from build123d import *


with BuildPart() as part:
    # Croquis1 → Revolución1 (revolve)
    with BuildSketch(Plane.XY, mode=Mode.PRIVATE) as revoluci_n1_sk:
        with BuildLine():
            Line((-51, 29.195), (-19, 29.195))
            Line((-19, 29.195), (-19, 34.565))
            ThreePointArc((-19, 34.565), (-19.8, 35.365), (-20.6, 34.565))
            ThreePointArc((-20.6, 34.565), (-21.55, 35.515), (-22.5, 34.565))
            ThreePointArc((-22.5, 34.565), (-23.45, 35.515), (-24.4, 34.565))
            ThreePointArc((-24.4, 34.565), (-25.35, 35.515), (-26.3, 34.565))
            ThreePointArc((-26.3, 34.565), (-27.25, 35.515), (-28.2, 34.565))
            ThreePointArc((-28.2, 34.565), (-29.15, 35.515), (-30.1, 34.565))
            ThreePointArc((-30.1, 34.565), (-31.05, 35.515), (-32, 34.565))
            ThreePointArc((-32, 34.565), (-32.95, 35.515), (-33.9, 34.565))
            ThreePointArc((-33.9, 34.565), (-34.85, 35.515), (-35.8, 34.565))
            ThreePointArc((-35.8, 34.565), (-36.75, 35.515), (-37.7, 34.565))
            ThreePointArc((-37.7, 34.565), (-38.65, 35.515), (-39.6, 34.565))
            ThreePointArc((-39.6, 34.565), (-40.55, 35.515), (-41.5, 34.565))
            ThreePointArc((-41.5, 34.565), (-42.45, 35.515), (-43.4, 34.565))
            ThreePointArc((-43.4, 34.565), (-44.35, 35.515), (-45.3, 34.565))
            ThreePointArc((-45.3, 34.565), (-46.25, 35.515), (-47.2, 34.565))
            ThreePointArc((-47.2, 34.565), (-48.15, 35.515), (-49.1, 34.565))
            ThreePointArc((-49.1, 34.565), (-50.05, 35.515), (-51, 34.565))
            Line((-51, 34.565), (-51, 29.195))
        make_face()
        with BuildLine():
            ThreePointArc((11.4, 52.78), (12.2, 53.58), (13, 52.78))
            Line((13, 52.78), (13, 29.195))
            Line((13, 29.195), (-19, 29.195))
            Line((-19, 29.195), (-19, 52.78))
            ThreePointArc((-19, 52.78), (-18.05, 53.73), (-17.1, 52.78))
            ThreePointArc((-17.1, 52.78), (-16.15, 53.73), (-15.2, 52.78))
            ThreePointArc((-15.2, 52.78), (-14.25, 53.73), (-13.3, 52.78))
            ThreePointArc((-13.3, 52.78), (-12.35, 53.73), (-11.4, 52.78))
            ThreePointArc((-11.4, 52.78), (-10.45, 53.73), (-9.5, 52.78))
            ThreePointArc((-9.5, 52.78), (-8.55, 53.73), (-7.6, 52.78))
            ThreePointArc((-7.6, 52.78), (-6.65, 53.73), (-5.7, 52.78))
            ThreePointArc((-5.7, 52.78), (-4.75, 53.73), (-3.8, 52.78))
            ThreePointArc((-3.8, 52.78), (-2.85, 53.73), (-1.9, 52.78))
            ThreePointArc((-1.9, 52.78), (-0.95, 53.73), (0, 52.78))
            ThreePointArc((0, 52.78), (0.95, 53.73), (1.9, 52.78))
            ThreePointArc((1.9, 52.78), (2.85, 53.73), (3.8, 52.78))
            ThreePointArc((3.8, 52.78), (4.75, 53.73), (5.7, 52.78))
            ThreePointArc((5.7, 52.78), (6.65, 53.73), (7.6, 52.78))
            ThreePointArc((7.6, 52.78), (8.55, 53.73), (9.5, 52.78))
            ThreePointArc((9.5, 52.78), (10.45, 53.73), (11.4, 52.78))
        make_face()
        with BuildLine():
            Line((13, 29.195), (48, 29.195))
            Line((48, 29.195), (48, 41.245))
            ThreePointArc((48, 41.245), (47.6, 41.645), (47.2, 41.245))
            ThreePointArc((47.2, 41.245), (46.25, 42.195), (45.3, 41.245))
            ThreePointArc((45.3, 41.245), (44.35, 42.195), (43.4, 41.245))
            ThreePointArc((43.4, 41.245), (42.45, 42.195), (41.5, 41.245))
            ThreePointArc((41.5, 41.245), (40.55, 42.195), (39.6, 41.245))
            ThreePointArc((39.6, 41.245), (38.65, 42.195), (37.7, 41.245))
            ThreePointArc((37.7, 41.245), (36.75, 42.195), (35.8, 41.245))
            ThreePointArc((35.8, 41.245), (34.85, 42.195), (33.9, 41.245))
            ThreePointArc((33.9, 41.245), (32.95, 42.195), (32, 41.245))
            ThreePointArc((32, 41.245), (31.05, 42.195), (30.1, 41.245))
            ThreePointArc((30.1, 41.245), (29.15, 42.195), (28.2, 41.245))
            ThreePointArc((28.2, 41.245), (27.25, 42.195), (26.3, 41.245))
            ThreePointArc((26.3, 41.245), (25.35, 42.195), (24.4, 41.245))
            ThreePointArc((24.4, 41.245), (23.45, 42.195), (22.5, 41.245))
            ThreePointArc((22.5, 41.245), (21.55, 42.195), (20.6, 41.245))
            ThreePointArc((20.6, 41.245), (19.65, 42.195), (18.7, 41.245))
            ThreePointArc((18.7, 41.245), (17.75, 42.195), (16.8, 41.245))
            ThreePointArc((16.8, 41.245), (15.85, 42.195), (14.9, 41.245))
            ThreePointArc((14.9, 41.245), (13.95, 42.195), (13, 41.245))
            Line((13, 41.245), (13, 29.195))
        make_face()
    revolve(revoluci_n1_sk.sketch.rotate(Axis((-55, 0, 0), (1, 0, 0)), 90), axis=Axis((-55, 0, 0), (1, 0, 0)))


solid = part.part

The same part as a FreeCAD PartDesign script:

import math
import FreeCAD as App
import Part
import Sketcher

V = App.Vector
Q = App.Units.Quantity

doc = App.newDocument("Part")
body = doc.addObject("PartDesign::Body", "Body")

sketch1 = body.newObject("Sketcher::SketchObject", "Sketch")
sketch1.AttachmentSupport = (doc.getObject("XY_Plane"), [""])
sketch1.MapMode = "FlatFace"
sketch1.addGeometry(Part.LineSegment(V(-51, 29.2, 0), V(48, 29.2, 0)), False)
sketch1.addGeometry(Part.LineSegment(V(48, 29.2, 0), V(48, 41.24, 0)), False)
sketch1.addGeometry(Part.ArcOfCircle(Part.Circle(V(47.6, 41.24, 0), V(0, 0, 1), 0.4), math.radians(0), math.radians(180)), False)
sketch1.addGeometry(Part.ArcOfCircle(Part.Circle(V(46.25, 41.24, 0), V(0, 0, 1), 0.95), math.radians(0), math.radians(180)), False)
sketch1.addGeometry(Part.ArcOfCircle(Part.Circle(V(44.35, 41.24, 0), V(0, 0, 1), 0.95), math.radians(0), math.radians(180)), False)
sketch1.addGeometry(Part.ArcOfCircle(Part.Circle(V(42.45, 41.24, 0), V(0, 0, 1), 0.95), math.radians(0), math.radians(180)), False)
sketch1.addGeometry(Part.ArcOfCircle(Part.Circle(V(40.55, 41.24, 0), V(0, 0, 1), 0.95), math.radians(0), math.radians(180)), False)
sketch1.addGeometry(Part.ArcOfCircle(Part.Circle(V(38.65, 41.24, 0), V(0, 0, 1), 0.95), math.radians(0), math.radians(180)), False)
sketch1.addGeometry(Part.ArcOfCircle(Part.Circle(V(36.75, 41.24, 0), V(0, 0, 1), 0.95), math.radians(0), math.radians(180)), False)
sketch1.addGeometry(Part.ArcOfCircle(Part.Circle(V(34.85, 41.24, 0), V(0, 0, 1), 0.95), math.radians(0), math.radians(180)), False)
sketch1.addGeometry(Part.ArcOfCircle(Part.Circle(V(32.95, 41.24, 0), V(0, 0, 1), 0.95), math.radians(0), math.radians(180)), False)
sketch1.addGeometry(Part.ArcOfCircle(Part.Circle(V(31.05, 41.24, 0), V(0, 0, 1), 0.95), math.radians(0), math.radians(180)), False)
sketch1.addGeometry(Part.ArcOfCircle(Part.Circle(V(29.15, 41.24, 0), V(0, 0, 1), 0.95), math.radians(0), math.radians(180)), False)
sketch1.addGeometry(Part.ArcOfCircle(Part.Circle(V(27.25, 41.24, 0), V(0, 0, 1), 0.95), math.radians(0), math.radians(180)), False)
sketch1.addGeometry(Part.ArcOfCircle(Part.Circle(V(25.35, 41.24, 0), V(0, 0, 1), 0.95), math.radians(0), math.radians(180)), False)
sketch1.addGeometry(Part.ArcOfCircle(Part.Circle(V(23.45, 41.24, 0), V(0, 0, 1), 0.95), math.radians(0), math.radians(180)), False)
sketch1.addGeometry(Part.ArcOfCircle(Part.Circle(V(21.55, 41.24, 0), V(0, 0, 1), 0.95), math.radians(0), math.radians(180)), False)
sketch1.addGeometry(Part.ArcOfCircle(Part.Circle(V(19.65, 41.24, 0), V(0, 0, 1), 0.95), math.radians(0), math.radians(180)), False)
sketch1.addGeometry(Part.ArcOfCircle(Part.Circle(V(17.75, 41.24, 0), V(0, 0, 1), 0.95), math.radians(0), math.radians(180)), False)
sketch1.addGeometry(Part.ArcOfCircle(Part.Circle(V(15.85, 41.24, 0), V(0, 0, 1), 0.95), math.radians(0), math.radians(180)), False)
sketch1.addGeometry(Part.ArcOfCircle(Part.Circle(V(13.95, 41.24, 0), V(0, 0, 1), 0.95), math.radians(0), math.radians(180)), False)
sketch1.addGeometry(Part.LineSegment(V(13, 41.24, 0), V(13, 52.78, 0)), False)
sketch1.addGeometry(Part.ArcOfCircle(Part.Circle(V(12.2, 52.78, 0), V(0, 0, 1), 0.8), math.radians(0), math.radians(180)), False)
sketch1.addGeometry(Part.ArcOfCircle(Part.Circle(V(10.45, 52.78, 0), V(0, 0, 1), 0.95), math.radians(0), math.radians(180)), False)
sketch1.addGeometry(Part.ArcOfCircle(Part.Circle(V(8.55, 52.78, 0), V(0, 0, 1), 0.95), math.radians(0), math.radians(180)), False)
sketch1.addGeometry(Part.ArcOfCircle(Part.Circle(V(6.65, 52.78, 0), V(0, 0, 1), 0.95), math.radians(0), math.radians(180)), False)
sketch1.addGeometry(Part.ArcOfCircle(Part.Circle(V(4.75, 52.78, 0), V(0, 0, 1), 0.95), math.radians(0), math.radians(180)), False)
sketch1.addGeometry(Part.ArcOfCircle(Part.Circle(V(2.85, 52.78, 0), V(0, 0, 1), 0.95), math.radians(0), math.radians(180)), False)
sketch1.addGeometry(Part.ArcOfCircle(Part.Circle(V(0.95, 52.78, 0), V(0, 0, 1), 0.95), math.radians(0), math.radians(180)), False)
sketch1.addGeometry(Part.ArcOfCircle(Part.Circle(V(-0.95, 52.78, 0), V(0, 0, 1), 0.95), math.radians(0), math.radians(180)), False)
sketch1.addGeometry(Part.ArcOfCircle(Part.Circle(V(-2.85, 52.78, 0), V(0, 0, 1), 0.95), math.radians(0), math.radians(180)), False)
sketch1.addGeometry(Part.ArcOfCircle(Part.Circle(V(-4.75, 52.78, 0), V(0, 0, 1), 0.95), math.radians(0), math.radians(180)), False)
sketch1.addGeometry(Part.ArcOfCircle(Part.Circle(V(-6.65, 52.78, 0), V(0, 0, 1), 0.95), math.radians(0), math.radians(180)), False)
sketch1.addGeometry(Part.ArcOfCircle(Part.Circle(V(-8.55, 52.78, 0), V(0, 0, 1), 0.95), math.radians(0), math.radians(180)), False)
sketch1.addGeometry(Part.ArcOfCircle(Part.Circle(V(-10.45, 52.78, 0), V(0, 0, 1), 0.95), math.radians(0), math.radians(180)), False)
sketch1.addGeometry(Part.ArcOfCircle(Part.Circle(V(-12.35, 52.78, 0), V(0, 0, 1), 0.95), math.radians(0), math.radians(180)), False)
sketch1.addGeometry(Part.ArcOfCircle(Part.Circle(V(-14.25, 52.78, 0), V(0, 0, 1), 0.95), math.radians(0), math.radians(180)), False)
sketch1.addGeometry(Part.ArcOfCircle(Part.Circle(V(-16.15, 52.78, 0), V(0, 0, 1), 0.95), math.radians(0), math.radians(180)), False)
sketch1.addGeometry(Part.ArcOfCircle(Part.Circle(V(-18.05, 52.78, 0), V(0, 0, 1), 0.95), math.radians(0), math.radians(180)), False)
sketch1.addGeometry(Part.LineSegment(V(-19, 52.78, 0), V(-19, 34.56, 0)), False)
sketch1.addGeometry(Part.ArcOfCircle(Part.Circle(V(-19.8, 34.56, 0), V(0, 0, 1), 0.8), math.radians(0), math.radians(180)), False)
sketch1.addGeometry(Part.ArcOfCircle(Part.Circle(V(-21.55, 34.56, 0), V(0, 0, 1), 0.95), math.radians(0), math.radians(180)), False)
sketch1.addGeometry(Part.ArcOfCircle(Part.Circle(V(-23.45, 34.56, 0), V(0, 0, 1), 0.95), math.radians(0), math.radians(180)), False)
sketch1.addGeometry(Part.ArcOfCircle(Part.Circle(V(-25.35, 34.56, 0), V(0, 0, 1), 0.95), math.radians(0), math.radians(180)), False)
sketch1.addGeometry(Part.ArcOfCircle(Part.Circle(V(-27.25, 34.56, 0), V(0, 0, 1), 0.95), math.radians(0), math.radians(180)), False)
sketch1.addGeometry(Part.ArcOfCircle(Part.Circle(V(-29.15, 34.56, 0), V(0, 0, 1), 0.95), math.radians(0), math.radians(180)), False)
sketch1.addGeometry(Part.ArcOfCircle(Part.Circle(V(-31.05, 34.56, 0), V(0, 0, 1), 0.95), math.radians(0), math.radians(180)), False)
sketch1.addGeometry(Part.ArcOfCircle(Part.Circle(V(-32.95, 34.56, 0), V(0, 0, 1), 0.95), math.radians(0), math.radians(180)), False)
sketch1.addGeometry(Part.ArcOfCircle(Part.Circle(V(-34.85, 34.56, 0), V(0, 0, 1), 0.95), math.radians(0), math.radians(180)), False)
sketch1.addGeometry(Part.ArcOfCircle(Part.Circle(V(-36.75, 34.56, 0), V(0, 0, 1), 0.95), math.radians(0), math.radians(180)), False)
sketch1.addGeometry(Part.ArcOfCircle(Part.Circle(V(-38.65, 34.56, 0), V(0, 0, 1), 0.95), math.radians(0), math.radians(180)), False)
sketch1.addGeometry(Part.ArcOfCircle(Part.Circle(V(-40.55, 34.56, 0), V(0, 0, 1), 0.95), math.radians(0), math.radians(180)), False)
sketch1.addGeometry(Part.ArcOfCircle(Part.Circle(V(-42.45, 34.56, 0), V(0, 0, 1), 0.95), math.radians(0), math.radians(180)), False)
sketch1.addGeometry(Part.ArcOfCircle(Part.Circle(V(-44.35, 34.56, 0), V(0, 0, 1), 0.95), math.radians(0), math.radians(180)), False)
sketch1.addGeometry(Part.ArcOfCircle(Part.Circle(V(-46.25, 34.56, 0), V(0, 0, 1), 0.95), math.radians(0), math.radians(180)), False)
sketch1.addGeometry(Part.ArcOfCircle(Part.Circle(V(-48.15, 34.56, 0), V(0, 0, 1), 0.95), math.radians(0), math.radians(180)), False)
sketch1.addGeometry(Part.ArcOfCircle(Part.Circle(V(-50.05, 34.56, 0), V(0, 0, 1), 0.95), math.radians(0), math.radians(180)), False)
sketch1.addGeometry(Part.LineSegment(V(-51, 34.56, 0), V(-51, 29.2, 0)), False)
sketch1.addConstraint(Sketcher.Constraint("Coincident", 0, 2, 1, 1))
sketch1.addConstraint(Sketcher.Constraint("Tangent", 1, 2, 2, 1))
sketch1.addConstraint(Sketcher.Constraint("Tangent", 2, 2, 3, 1))
sketch1.addConstraint(Sketcher.Constraint("Tangent", 3, 2, 4, 1))
sketch1.addConstraint(Sketcher.Constraint("Tangent", 4, 2, 5, 1))
sketch1.addConstraint(Sketcher.Constraint("Tangent", 5, 2, 6, 1))
sketch1.addConstraint(Sketcher.Constraint("Tangent", 6, 2, 7, 1))
sketch1.addConstraint(Sketcher.Constraint("Tangent", 7, 2, 8, 1))
sketch1.addConstraint(Sketcher.Constraint("Tangent", 8, 2, 9, 1))
sketch1.addConstraint(Sketcher.Constraint("Tangent", 9, 2, 10, 1))
sketch1.addConstraint(Sketcher.Constraint("Tangent", 10, 2, 11, 1))
sketch1.addConstraint(Sketcher.Constraint("Tangent", 11, 2, 12, 1))
sketch1.addConstraint(Sketcher.Constraint("Tangent", 12, 2, 13, 1))
sketch1.addConstraint(Sketcher.Constraint("Tangent", 13, 2, 14, 1))
sketch1.addConstraint(Sketcher.Constraint("Tangent", 14, 2, 15, 1))
sketch1.addConstraint(Sketcher.Constraint("Tangent", 15, 2, 16, 1))
sketch1.addConstraint(Sketcher.Constraint("Tangent", 16, 2, 17, 1))
sketch1.addConstraint(Sketcher.Constraint("Tangent", 17, 2, 18, 1))
sketch1.addConstraint(Sketcher.Constraint("Tangent", 18, 2, 19, 1))
sketch1.addConstraint(Sketcher.Constraint("Tangent", 19, 2, 20, 1))
sketch1.addConstraint(Sketcher.Constraint("Tangent", 20, 2, 21, 1))
sketch1.addConstraint(Sketcher.Constraint("Tangent", 21, 2, 22, 1))
sketch1.addConstraint(Sketcher.Constraint("Tangent", 22, 2, 23, 1))
sketch1.addConstraint(Sketcher.Constraint("Tangent", 23, 2, 24, 1))
sketch1.addConstraint(Sketcher.Constraint("Tangent", 24, 2, 25, 1))
sketch1.addConstraint(Sketcher.Constraint("Tangent", 25, 2, 26, 1))
sketch1.addConstraint(Sketcher.Constraint("Tangent", 26, 2, 27, 1))
sketch1.addConstraint(Sketcher.Constraint("Tangent", 27, 2, 28, 1))
sketch1.addConstraint(Sketcher.Constraint("Tangent", 28, 2, 29, 1))
sketch1.addConstraint(Sketcher.Constraint("Tangent", 29, 2, 30, 1))
sketch1.addConstraint(Sketcher.Constraint("Tangent", 30, 2, 31, 1))
sketch1.addConstraint(Sketcher.Constraint("Tangent", 31, 2, 32, 1))
sketch1.addConstraint(Sketcher.Constraint("Tangent", 32, 2, 33, 1))
sketch1.addConstraint(Sketcher.Constraint("Tangent", 33, 2, 34, 1))
sketch1.addConstraint(Sketcher.Constraint("Tangent", 34, 2, 35, 1))
sketch1.addConstraint(Sketcher.Constraint("Tangent", 35, 2, 36, 1))
sketch1.addConstraint(Sketcher.Constraint("Tangent", 36, 2, 37, 1))
sketch1.addConstraint(Sketcher.Constraint("Tangent", 37, 2, 38, 1))
sketch1.addConstraint(Sketcher.Constraint("Tangent", 38, 2, 39, 1))
sketch1.addConstraint(Sketcher.Constraint("Tangent", 39, 2, 40, 1))
sketch1.addConstraint(Sketcher.Constraint("Tangent", 40, 2, 41, 1))
sketch1.addConstraint(Sketcher.Constraint("Tangent", 41, 2, 42, 1))
sketch1.addConstraint(Sketcher.Constraint("Tangent", 42, 2, 43, 1))
sketch1.addConstraint(Sketcher.Constraint("Tangent", 43, 2, 44, 1))
sketch1.addConstraint(Sketcher.Constraint("Tangent", 44, 2, 45, 1))
sketch1.addConstraint(Sketcher.Constraint("Tangent", 45, 2, 46, 1))
sketch1.addConstraint(Sketcher.Constraint("Tangent", 46, 2, 47, 1))
sketch1.addConstraint(Sketcher.Constraint("Tangent", 47, 2, 48, 1))
sketch1.addConstraint(Sketcher.Constraint("Tangent", 48, 2, 49, 1))
sketch1.addConstraint(Sketcher.Constraint("Tangent", 49, 2, 50, 1))
sketch1.addConstraint(Sketcher.Constraint("Tangent", 50, 2, 51, 1))
sketch1.addConstraint(Sketcher.Constraint("Tangent", 51, 2, 52, 1))
sketch1.addConstraint(Sketcher.Constraint("Tangent", 52, 2, 53, 1))
sketch1.addConstraint(Sketcher.Constraint("Tangent", 53, 2, 54, 1))
sketch1.addConstraint(Sketcher.Constraint("Tangent", 54, 2, 55, 1))
sketch1.addConstraint(Sketcher.Constraint("Tangent", 55, 2, 56, 1))
sketch1.addConstraint(Sketcher.Constraint("Tangent", 56, 2, 57, 1))
sketch1.addConstraint(Sketcher.Constraint("Coincident", 57, 2, 0, 1))
sketch1.addConstraint(Sketcher.Constraint("Horizontal", 0))
sketch1.addConstraint(Sketcher.Constraint("Vertical", 1))
sketch1.addConstraint(Sketcher.Constraint("Vertical", 21))
sketch1.addConstraint(Sketcher.Constraint("Vertical", 39))
sketch1.addConstraint(Sketcher.Constraint("Vertical", 57))
sketch1.addConstraint(Sketcher.Constraint("Equal", 3, 4))
sketch1.addConstraint(Sketcher.Constraint("Equal", 4, 5))
sketch1.addConstraint(Sketcher.Constraint("Equal", 5, 6))
sketch1.addConstraint(Sketcher.Constraint("Equal", 6, 7))
sketch1.addConstraint(Sketcher.Constraint("Equal", 7, 8))
sketch1.addConstraint(Sketcher.Constraint("Equal", 8, 9))
sketch1.addConstraint(Sketcher.Constraint("Equal", 9, 10))
sketch1.addConstraint(Sketcher.Constraint("Equal", 10, 11))
sketch1.addConstraint(Sketcher.Constraint("Equal", 11, 12))
sketch1.addConstraint(Sketcher.Constraint("Equal", 12, 13))
sketch1.addConstraint(Sketcher.Constraint("Equal", 13, 14))
sketch1.addConstraint(Sketcher.Constraint("Equal", 14, 15))
sketch1.addConstraint(Sketcher.Constraint("Equal", 15, 16))
sketch1.addConstraint(Sketcher.Constraint("Equal", 16, 17))
sketch1.addConstraint(Sketcher.Constraint("Equal", 17, 18))
sketch1.addConstraint(Sketcher.Constraint("Equal", 18, 19))
sketch1.addConstraint(Sketcher.Constraint("Equal", 19, 20))
sketch1.addConstraint(Sketcher.Constraint("Equal", 20, 23))
sketch1.addConstraint(Sketcher.Constraint("Equal", 23, 24))
sketch1.addConstraint(Sketcher.Constraint("Equal", 24, 25))
sketch1.addConstraint(Sketcher.Constraint("Equal", 25, 26))
sketch1.addConstraint(Sketcher.Constraint("Equal", 26, 27))
sketch1.addConstraint(Sketcher.Constraint("Equal", 27, 28))
sketch1.addConstraint(Sketcher.Constraint("Equal", 28, 29))
sketch1.addConstraint(Sketcher.Constraint("Equal", 29, 30))
sketch1.addConstraint(Sketcher.Constraint("Equal", 30, 31))
sketch1.addConstraint(Sketcher.Constraint("Equal", 31, 32))
sketch1.addConstraint(Sketcher.Constraint("Equal", 32, 33))
sketch1.addConstraint(Sketcher.Constraint("Equal", 33, 34))
sketch1.addConstraint(Sketcher.Constraint("Equal", 34, 35))
sketch1.addConstraint(Sketcher.Constraint("Equal", 35, 36))
sketch1.addConstraint(Sketcher.Constraint("Equal", 36, 37))
sketch1.addConstraint(Sketcher.Constraint("Equal", 37, 38))
sketch1.addConstraint(Sketcher.Constraint("Equal", 22, 40))
sketch1.addConstraint(Sketcher.Constraint("Equal", 38, 41))
sketch1.addConstraint(Sketcher.Constraint("Equal", 41, 42))
sketch1.addConstraint(Sketcher.Constraint("Equal", 42, 43))
sketch1.addConstraint(Sketcher.Constraint("Equal", 43, 44))
sketch1.addConstraint(Sketcher.Constraint("Equal", 44, 45))
sketch1.addConstraint(Sketcher.Constraint("Equal", 45, 46))
sketch1.addConstraint(Sketcher.Constraint("Equal", 46, 47))
sketch1.addConstraint(Sketcher.Constraint("Equal", 47, 48))
sketch1.addConstraint(Sketcher.Constraint("Equal", 48, 49))
sketch1.addConstraint(Sketcher.Constraint("Equal", 49, 50))
sketch1.addConstraint(Sketcher.Constraint("Equal", 50, 51))
sketch1.addConstraint(Sketcher.Constraint("Equal", 51, 52))
sketch1.addConstraint(Sketcher.Constraint("Equal", 52, 53))
sketch1.addConstraint(Sketcher.Constraint("Equal", 53, 54))
sketch1.addConstraint(Sketcher.Constraint("Equal", 54, 55))
sketch1.addConstraint(Sketcher.Constraint("Equal", 55, 56))
sketch1.addConstraint(Sketcher.Constraint("Symmetric", 28, 3, 29, 3, -2))
sketch1.addConstraint(Sketcher.Constraint("Horizontal", 2, 3, 3, 3))
sketch1.addConstraint(Sketcher.Constraint("Horizontal", 3, 3, 4, 3))
sketch1.addConstraint(Sketcher.Constraint("Horizontal", 4, 3, 5, 3))
sketch1.addConstraint(Sketcher.Constraint("Horizontal", 5, 3, 6, 3))
sketch1.addConstraint(Sketcher.Constraint("Horizontal", 6, 3, 7, 3))
sketch1.addConstraint(Sketcher.Constraint("Horizontal", 7, 3, 8, 3))
sketch1.addConstraint(Sketcher.Constraint("Horizontal", 8, 3, 9, 3))
sketch1.addConstraint(Sketcher.Constraint("Horizontal", 9, 3, 10, 3))
sketch1.addConstraint(Sketcher.Constraint("Horizontal", 10, 3, 11, 3))
sketch1.addConstraint(Sketcher.Constraint("Horizontal", 11, 3, 12, 3))
sketch1.addConstraint(Sketcher.Constraint("Horizontal", 12, 3, 13, 3))
sketch1.addConstraint(Sketcher.Constraint("Horizontal", 13, 3, 14, 3))
sketch1.addConstraint(Sketcher.Constraint("Horizontal", 14, 3, 15, 3))
sketch1.addConstraint(Sketcher.Constraint("Horizontal", 15, 3, 16, 3))
sketch1.addConstraint(Sketcher.Constraint("Horizontal", 16, 3, 17, 3))
sketch1.addConstraint(Sketcher.Constraint("Horizontal", 17, 3, 18, 3))
sketch1.addConstraint(Sketcher.Constraint("Horizontal", 18, 3, 19, 3))
sketch1.addConstraint(Sketcher.Constraint("Horizontal", 19, 3, 20, 3))
sketch1.addConstraint(Sketcher.Constraint("Horizontal", 22, 3, 23, 3))
sketch1.addConstraint(Sketcher.Constraint("Horizontal", 23, 3, 24, 3))
sketch1.addConstraint(Sketcher.Constraint("Horizontal", 24, 3, 25, 3))
sketch1.addConstraint(Sketcher.Constraint("Horizontal", 25, 3, 26, 3))
sketch1.addConstraint(Sketcher.Constraint("Horizontal", 26, 3, 27, 3))
sketch1.addConstraint(Sketcher.Constraint("Horizontal", 27, 3, 28, 3))
sketch1.addConstraint(Sketcher.Constraint("Horizontal", 29, 3, 30, 3))
sketch1.addConstraint(Sketcher.Constraint("Horizontal", 30, 3, 31, 3))
sketch1.addConstraint(Sketcher.Constraint("Horizontal", 31, 3, 32, 3))
sketch1.addConstraint(Sketcher.Constraint("Horizontal", 32, 3, 33, 3))
sketch1.addConstraint(Sketcher.Constraint("Horizontal", 33, 3, 34, 3))
sketch1.addConstraint(Sketcher.Constraint("Horizontal", 34, 3, 35, 3))
sketch1.addConstraint(Sketcher.Constraint("Horizontal", 35, 3, 36, 3))
sketch1.addConstraint(Sketcher.Constraint("Horizontal", 36, 3, 37, 3))
sketch1.addConstraint(Sketcher.Constraint("Horizontal", 37, 3, 38, 3))
sketch1.addConstraint(Sketcher.Constraint("Horizontal", 40, 3, 41, 3))
sketch1.addConstraint(Sketcher.Constraint("Horizontal", 41, 3, 42, 3))
sketch1.addConstraint(Sketcher.Constraint("Horizontal", 42, 3, 43, 3))
sketch1.addConstraint(Sketcher.Constraint("Horizontal", 43, 3, 44, 3))
sketch1.addConstraint(Sketcher.Constraint("Horizontal", 44, 3, 45, 3))
sketch1.addConstraint(Sketcher.Constraint("Horizontal", 45, 3, 46, 3))
sketch1.addConstraint(Sketcher.Constraint("Horizontal", 46, 3, 47, 3))
sketch1.addConstraint(Sketcher.Constraint("Horizontal", 47, 3, 48, 3))
sketch1.addConstraint(Sketcher.Constraint("Horizontal", 48, 3, 49, 3))
sketch1.addConstraint(Sketcher.Constraint("Horizontal", 49, 3, 50, 3))
sketch1.addConstraint(Sketcher.Constraint("Horizontal", 50, 3, 51, 3))
sketch1.addConstraint(Sketcher.Constraint("Horizontal", 51, 3, 52, 3))
sketch1.addConstraint(Sketcher.Constraint("Horizontal", 52, 3, 53, 3))
sketch1.addConstraint(Sketcher.Constraint("Horizontal", 53, 3, 54, 3))
sketch1.addConstraint(Sketcher.Constraint("Horizontal", 54, 3, 55, 3))
sketch1.addConstraint(Sketcher.Constraint("Horizontal", 55, 3, 56, 3))
sketch1.addConstraint(Sketcher.Constraint("Radius", 2, Q("0.4 mm")))
sketch1.addConstraint(Sketcher.Constraint("Radius", 22, Q("0.8 mm")))
sketch1.addConstraint(Sketcher.Constraint("DistanceX", 0, 1, 0, 2, Q("99 mm")))
sketch1.addConstraint(Sketcher.Constraint("DistanceY", 1, 1, 1, 2, Q("12.05 mm")))
sketch1.addConstraint(Sketcher.Constraint("DistanceY", 57, 2, 57, 1, Q("5.37 mm")))
sketch1.addConstraint(Sketcher.Constraint("DistanceY", 21, 1, 21, 2, Q("11.535 mm")))
sketch1.addConstraint(Sketcher.Constraint("DistanceY", -1, 1, 22, 3, Q("52.78 mm")))
revolution = body.newObject("PartDesign::Revolution", "Revolution")
revolution.Profile = sketch1
revolution.ReferenceAxis = (sketch1, ["H_Axis"])
revolution.Angle = 360

doc.recompute()
